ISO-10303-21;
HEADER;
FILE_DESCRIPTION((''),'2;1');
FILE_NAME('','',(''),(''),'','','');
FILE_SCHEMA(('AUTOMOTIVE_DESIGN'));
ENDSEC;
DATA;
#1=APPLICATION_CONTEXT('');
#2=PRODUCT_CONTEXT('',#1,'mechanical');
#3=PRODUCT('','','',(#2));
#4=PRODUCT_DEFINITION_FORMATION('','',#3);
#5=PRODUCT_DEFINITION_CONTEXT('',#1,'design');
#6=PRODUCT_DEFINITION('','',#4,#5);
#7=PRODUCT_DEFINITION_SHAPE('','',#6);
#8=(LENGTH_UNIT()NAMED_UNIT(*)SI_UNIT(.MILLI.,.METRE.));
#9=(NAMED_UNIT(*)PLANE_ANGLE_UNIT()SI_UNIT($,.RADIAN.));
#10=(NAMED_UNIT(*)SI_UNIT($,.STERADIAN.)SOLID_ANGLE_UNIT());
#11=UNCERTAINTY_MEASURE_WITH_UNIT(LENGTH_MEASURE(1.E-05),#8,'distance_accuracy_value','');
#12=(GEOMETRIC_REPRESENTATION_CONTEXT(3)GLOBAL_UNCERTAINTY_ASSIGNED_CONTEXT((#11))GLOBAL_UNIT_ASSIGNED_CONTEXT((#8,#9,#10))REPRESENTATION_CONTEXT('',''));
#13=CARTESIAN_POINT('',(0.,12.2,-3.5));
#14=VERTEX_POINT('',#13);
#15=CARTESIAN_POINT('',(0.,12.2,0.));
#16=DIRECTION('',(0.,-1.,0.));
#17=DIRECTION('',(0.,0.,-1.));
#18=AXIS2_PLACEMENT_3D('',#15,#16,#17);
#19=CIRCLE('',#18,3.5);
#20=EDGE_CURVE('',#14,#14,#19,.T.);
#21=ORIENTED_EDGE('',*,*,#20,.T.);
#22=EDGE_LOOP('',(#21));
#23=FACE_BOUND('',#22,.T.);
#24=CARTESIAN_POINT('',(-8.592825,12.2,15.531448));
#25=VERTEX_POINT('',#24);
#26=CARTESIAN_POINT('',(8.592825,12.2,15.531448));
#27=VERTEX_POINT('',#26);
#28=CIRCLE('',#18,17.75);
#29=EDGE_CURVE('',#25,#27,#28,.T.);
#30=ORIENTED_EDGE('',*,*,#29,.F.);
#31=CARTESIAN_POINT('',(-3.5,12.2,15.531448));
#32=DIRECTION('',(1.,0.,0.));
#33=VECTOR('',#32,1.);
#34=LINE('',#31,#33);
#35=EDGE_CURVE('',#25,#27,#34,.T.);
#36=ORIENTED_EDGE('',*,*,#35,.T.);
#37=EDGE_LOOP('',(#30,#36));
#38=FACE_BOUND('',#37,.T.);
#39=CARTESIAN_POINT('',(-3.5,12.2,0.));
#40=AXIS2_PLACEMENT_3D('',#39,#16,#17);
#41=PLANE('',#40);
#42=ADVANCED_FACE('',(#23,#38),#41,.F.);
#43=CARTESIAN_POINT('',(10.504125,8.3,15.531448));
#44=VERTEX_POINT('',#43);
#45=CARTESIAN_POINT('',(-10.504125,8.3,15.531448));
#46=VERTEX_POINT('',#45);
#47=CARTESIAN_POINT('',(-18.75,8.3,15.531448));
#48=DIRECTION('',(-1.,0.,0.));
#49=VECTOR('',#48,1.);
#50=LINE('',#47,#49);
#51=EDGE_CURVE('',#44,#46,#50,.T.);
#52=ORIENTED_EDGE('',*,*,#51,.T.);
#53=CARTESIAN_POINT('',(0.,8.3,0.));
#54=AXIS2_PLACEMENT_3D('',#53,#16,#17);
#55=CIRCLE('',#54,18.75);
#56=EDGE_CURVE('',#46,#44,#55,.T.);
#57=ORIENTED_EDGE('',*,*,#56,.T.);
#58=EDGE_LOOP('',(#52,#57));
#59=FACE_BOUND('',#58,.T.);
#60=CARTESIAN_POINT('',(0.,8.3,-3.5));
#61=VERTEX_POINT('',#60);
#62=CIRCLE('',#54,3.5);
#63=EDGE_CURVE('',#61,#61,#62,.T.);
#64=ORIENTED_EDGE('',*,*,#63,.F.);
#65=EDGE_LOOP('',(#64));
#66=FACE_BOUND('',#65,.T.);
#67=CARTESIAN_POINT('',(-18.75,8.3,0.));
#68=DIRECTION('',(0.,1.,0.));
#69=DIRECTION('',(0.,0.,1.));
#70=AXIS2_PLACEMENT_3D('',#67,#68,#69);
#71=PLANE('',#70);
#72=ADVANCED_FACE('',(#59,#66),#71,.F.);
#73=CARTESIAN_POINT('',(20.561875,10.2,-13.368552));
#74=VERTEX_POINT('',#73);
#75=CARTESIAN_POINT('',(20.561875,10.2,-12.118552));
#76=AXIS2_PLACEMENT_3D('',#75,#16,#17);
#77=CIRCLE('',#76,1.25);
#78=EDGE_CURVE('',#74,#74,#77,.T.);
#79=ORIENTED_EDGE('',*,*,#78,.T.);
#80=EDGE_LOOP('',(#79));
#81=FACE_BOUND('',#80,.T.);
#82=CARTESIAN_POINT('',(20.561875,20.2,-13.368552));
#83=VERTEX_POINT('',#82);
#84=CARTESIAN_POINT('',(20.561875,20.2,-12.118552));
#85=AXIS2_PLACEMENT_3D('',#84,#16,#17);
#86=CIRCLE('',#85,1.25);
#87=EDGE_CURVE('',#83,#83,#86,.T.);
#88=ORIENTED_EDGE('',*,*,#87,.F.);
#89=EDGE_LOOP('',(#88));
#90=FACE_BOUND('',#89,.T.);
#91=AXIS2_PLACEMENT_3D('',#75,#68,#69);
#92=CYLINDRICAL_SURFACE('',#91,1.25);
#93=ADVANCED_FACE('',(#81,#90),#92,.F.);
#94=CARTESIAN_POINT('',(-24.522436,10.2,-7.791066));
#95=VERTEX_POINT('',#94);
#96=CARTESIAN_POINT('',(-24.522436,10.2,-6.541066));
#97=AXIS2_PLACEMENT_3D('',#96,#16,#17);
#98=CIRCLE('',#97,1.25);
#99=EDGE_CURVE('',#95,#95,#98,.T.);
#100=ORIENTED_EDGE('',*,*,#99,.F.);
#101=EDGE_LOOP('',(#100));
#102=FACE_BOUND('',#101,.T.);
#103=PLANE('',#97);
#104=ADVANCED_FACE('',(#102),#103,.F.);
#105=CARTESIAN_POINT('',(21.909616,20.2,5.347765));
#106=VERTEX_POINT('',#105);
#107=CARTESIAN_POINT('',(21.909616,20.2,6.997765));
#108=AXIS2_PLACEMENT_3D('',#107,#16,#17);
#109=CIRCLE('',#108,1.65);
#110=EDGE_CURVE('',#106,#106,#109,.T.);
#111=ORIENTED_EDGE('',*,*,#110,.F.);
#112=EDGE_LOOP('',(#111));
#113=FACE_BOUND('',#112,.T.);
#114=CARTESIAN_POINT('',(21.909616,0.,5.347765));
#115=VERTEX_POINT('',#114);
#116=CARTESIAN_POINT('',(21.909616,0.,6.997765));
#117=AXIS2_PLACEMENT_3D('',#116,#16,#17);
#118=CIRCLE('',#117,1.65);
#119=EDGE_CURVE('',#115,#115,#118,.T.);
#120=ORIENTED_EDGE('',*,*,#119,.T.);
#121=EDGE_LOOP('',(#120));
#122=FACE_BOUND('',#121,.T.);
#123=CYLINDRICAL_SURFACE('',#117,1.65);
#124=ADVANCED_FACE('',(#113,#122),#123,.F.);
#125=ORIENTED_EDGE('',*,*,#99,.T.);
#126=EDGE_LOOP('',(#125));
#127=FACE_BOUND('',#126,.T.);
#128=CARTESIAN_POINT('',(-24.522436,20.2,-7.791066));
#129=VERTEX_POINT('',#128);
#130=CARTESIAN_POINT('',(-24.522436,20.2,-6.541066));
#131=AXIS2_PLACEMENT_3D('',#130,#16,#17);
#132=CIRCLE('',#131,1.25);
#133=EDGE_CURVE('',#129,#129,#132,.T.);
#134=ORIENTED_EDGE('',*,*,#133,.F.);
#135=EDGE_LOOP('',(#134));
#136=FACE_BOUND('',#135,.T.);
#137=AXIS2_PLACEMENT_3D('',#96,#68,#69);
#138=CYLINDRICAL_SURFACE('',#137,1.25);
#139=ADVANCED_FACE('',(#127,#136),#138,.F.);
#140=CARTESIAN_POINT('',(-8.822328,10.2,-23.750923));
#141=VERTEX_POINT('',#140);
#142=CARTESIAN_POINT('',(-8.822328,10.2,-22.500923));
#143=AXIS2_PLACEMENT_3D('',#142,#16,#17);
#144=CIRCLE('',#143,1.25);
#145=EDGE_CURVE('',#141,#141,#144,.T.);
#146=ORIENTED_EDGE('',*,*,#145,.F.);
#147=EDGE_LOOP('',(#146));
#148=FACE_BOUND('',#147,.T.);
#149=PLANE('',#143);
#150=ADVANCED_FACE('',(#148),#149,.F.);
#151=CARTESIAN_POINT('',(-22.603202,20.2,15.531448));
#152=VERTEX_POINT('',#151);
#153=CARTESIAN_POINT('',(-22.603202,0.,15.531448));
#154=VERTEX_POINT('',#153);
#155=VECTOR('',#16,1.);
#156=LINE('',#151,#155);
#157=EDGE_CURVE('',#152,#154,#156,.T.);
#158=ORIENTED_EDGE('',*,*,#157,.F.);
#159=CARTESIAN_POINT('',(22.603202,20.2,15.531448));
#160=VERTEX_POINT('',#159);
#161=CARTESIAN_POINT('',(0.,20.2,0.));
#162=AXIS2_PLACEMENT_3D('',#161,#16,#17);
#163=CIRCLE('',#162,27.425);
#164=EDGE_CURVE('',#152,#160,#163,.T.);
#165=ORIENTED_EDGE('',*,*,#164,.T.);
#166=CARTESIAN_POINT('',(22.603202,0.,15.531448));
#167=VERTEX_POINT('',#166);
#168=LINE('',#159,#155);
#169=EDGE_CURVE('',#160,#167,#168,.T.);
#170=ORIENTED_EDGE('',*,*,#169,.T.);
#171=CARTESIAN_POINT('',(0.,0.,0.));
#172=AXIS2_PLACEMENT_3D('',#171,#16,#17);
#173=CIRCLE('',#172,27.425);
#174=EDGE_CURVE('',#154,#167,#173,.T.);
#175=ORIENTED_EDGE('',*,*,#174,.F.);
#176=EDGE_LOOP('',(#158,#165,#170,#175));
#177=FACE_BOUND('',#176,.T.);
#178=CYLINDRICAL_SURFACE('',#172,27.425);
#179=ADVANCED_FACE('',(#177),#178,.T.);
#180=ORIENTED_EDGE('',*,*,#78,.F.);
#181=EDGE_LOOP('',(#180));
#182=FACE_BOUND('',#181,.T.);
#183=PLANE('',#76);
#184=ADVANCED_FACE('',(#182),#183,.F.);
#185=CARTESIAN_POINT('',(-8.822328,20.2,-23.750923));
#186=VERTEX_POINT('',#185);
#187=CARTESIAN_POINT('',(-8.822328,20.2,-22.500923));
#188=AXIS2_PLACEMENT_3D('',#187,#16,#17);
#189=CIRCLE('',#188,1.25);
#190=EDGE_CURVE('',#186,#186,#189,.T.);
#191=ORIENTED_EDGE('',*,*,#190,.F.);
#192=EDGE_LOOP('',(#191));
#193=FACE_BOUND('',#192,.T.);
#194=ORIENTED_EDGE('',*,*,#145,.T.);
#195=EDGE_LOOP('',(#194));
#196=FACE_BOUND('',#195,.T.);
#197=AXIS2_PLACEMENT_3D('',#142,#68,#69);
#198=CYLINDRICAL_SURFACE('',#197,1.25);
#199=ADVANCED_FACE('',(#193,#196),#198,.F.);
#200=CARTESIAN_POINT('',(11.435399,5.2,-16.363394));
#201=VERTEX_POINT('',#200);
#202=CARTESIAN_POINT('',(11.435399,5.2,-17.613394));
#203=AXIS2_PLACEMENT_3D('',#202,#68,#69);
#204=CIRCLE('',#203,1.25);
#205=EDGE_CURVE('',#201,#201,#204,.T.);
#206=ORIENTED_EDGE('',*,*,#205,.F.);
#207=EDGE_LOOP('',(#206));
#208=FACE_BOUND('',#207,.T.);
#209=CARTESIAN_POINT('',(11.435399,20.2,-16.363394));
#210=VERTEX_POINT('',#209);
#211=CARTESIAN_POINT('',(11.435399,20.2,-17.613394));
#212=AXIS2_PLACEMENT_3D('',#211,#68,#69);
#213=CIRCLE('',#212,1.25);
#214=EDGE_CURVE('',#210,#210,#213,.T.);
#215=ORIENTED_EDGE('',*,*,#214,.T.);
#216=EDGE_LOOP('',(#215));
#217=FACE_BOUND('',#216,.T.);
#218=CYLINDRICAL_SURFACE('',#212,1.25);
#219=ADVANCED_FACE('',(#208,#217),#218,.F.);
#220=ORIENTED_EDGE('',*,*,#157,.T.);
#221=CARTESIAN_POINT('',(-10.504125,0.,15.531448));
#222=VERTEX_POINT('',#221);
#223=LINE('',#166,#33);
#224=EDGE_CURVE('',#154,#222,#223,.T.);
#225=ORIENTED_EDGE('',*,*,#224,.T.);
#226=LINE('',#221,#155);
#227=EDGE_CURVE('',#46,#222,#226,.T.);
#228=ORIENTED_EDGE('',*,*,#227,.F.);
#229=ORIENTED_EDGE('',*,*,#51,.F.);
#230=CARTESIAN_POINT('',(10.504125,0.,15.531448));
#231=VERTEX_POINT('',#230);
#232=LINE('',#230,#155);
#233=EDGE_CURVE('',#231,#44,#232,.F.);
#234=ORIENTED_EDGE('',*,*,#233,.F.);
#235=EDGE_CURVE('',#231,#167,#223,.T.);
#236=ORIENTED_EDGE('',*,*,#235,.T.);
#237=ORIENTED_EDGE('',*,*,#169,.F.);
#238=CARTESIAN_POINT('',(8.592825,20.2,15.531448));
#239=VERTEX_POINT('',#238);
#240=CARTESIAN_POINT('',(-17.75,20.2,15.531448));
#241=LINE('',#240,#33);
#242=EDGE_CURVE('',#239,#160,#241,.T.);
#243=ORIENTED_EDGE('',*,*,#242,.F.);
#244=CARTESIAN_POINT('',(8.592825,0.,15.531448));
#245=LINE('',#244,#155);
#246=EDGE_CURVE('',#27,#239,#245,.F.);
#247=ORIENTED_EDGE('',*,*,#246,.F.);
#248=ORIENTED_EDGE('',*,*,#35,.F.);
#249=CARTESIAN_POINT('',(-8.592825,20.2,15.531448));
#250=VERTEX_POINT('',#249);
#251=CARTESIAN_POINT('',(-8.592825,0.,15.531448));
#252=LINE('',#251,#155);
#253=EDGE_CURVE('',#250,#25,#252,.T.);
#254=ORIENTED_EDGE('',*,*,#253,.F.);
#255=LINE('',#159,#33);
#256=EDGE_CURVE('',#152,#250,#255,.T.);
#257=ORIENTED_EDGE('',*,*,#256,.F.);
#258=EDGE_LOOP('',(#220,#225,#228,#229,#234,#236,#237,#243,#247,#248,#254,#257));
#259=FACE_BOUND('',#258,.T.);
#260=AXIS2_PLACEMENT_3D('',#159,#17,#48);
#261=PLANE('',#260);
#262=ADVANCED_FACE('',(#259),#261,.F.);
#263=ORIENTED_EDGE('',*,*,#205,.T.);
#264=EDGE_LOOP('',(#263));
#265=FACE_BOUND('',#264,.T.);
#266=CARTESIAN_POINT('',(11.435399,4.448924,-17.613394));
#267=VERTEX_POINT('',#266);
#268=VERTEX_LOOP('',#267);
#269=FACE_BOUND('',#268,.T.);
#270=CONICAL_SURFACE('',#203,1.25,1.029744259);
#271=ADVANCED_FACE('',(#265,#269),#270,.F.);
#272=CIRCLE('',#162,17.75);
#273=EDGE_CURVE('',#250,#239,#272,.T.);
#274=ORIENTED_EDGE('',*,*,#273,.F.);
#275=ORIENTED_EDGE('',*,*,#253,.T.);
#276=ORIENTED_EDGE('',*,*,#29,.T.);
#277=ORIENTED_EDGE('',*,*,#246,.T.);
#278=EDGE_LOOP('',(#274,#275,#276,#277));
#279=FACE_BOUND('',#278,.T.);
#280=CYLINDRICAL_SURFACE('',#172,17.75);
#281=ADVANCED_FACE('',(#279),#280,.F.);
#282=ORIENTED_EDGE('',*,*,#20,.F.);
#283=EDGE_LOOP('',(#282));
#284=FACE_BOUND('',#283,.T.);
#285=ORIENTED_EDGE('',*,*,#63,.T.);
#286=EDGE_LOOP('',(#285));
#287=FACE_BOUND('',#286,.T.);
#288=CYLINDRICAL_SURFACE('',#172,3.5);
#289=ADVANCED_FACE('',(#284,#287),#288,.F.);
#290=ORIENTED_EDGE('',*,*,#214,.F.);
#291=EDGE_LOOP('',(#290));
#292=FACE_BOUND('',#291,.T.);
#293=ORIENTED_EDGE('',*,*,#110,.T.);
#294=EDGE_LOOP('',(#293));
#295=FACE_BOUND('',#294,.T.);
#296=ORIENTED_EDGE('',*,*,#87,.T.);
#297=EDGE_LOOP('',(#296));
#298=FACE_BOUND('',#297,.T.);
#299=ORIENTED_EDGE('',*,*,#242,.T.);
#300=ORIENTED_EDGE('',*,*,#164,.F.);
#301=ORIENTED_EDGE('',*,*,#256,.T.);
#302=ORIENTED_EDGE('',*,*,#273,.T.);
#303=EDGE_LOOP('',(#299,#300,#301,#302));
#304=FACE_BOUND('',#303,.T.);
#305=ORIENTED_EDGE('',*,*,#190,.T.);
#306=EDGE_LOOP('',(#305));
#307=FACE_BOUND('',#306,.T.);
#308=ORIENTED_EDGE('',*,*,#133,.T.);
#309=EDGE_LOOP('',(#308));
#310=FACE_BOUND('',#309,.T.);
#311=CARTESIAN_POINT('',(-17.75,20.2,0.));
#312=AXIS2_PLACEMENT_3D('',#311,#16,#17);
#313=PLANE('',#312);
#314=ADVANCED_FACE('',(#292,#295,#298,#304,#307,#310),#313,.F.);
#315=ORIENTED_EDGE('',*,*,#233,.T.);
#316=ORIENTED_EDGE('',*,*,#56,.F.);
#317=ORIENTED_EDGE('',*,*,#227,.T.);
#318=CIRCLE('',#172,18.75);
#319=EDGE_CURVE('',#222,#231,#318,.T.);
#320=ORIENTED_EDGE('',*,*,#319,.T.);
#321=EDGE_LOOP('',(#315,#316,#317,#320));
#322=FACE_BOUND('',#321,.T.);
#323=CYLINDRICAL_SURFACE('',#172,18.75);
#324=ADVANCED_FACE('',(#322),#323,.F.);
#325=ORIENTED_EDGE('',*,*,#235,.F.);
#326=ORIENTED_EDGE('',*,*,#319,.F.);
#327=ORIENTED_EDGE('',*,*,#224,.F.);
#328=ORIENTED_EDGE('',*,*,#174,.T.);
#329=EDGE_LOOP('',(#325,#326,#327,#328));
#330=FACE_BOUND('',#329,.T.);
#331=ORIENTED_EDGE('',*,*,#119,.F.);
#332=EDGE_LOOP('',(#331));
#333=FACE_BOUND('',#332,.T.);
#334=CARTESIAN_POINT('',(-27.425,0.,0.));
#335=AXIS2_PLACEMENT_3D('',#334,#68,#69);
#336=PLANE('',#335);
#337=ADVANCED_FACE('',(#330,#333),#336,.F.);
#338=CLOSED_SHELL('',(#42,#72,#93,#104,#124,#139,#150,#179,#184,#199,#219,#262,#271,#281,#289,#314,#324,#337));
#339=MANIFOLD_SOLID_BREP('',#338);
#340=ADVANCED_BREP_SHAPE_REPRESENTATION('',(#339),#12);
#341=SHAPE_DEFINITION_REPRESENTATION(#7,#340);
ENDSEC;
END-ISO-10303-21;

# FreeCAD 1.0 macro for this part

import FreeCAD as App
import Part
import Sketcher
Q = App.Units.Quantity

doc = App.newDocument("Part")
body = doc.addObject("PartDesign::Body", "Body")

# Sketch on XY plane
sketch1 = doc.addObject("Sketcher::SketchObject", "Sketch")
body.addObject(sketch1)
sketch1.AttachmentSupport = (doc.XY_Plane, [""])
sketch1.MapMode = "FlatFace"
sketch1.addGeometry([
    Part.LineSegment(App.Vector(-27.4, 0, 0), App.Vector(-18.8, 0, 0)),  # 0
    Part.LineSegment(App.Vector(-18.8, 0, 0), App.Vector(-18.8, 8.3, 0)),  # 1
    Part.LineSegment(App.Vector(-18.8, 8.3, 0), App.Vector(-3.5, 8.3, 0)),  # 2
    Part.LineSegment(App.Vector(-3.5, 8.3, 0), App.Vector(-3.5, 12.2, 0)),  # 3
    Part.LineSegment(App.Vector(-3.5, 12.2, 0), App.Vector(-17.8, 12.2, 0)),  # 4
    Part.LineSegment(App.Vector(-17.8, 12.2, 0), App.Vector(-17.8, 20.2, 0)),  # 5
    Part.LineSegment(App.Vector(-17.8, 20.2, 0), App.Vector(-27.4, 20.2, 0)),  # 6
    Part.LineSegment(App.Vector(-27.4, 20.2, 0), App.Vector(-27.4, 0, 0)),  # 7
], False)
sketch1.addConstraint([
    Sketcher.Constraint("Coincident", 0, 2, 1, 1),
    Sketcher.Constraint("Coincident", 1, 2, 2, 1),
    Sketcher.Constraint("Coincident", 2, 2, 3, 1),
    Sketcher.Constraint("Coincident", 3, 2, 4, 1),
    Sketcher.Constraint("Coincident", 4, 2, 5, 1),
    Sketcher.Constraint("Coincident", 5, 2, 6, 1),
    Sketcher.Constraint("Coincident", 6, 2, 7, 1),
    Sketcher.Constraint("Coincident", 7, 2, 0, 1),
    Sketcher.Constraint("Horizontal", 0),
    Sketcher.Constraint("Vertical", 1),
    Sketcher.Constraint("Horizontal", 2),
    Sketcher.Constraint("Vertical", 3),
    Sketcher.Constraint("Horizontal", 4),
    Sketcher.Constraint("Vertical", 5),
    Sketcher.Constraint("Horizontal", 6),
    Sketcher.Constraint("Vertical", 7),
    Sketcher.Constraint("PointOnObject", 0, 2, -1),
    Sketcher.Constraint("DistanceY", 5, 1, 5, 2, Q("8 mm")),
    Sketcher.Constraint("DistanceY", 1, 1, 1, 2, Q("8.3 mm")),
    Sketcher.Constraint("DistanceY", 3, 1, 3, 2, Q("3.9 mm")),
    Sketcher.Constraint("DistanceX", 1, 2, 4, 2, Q("1 mm")),
    Sketcher.Constraint("DistanceX", 2, 1, 2, 2, Q("15.25 mm")),
    Sketcher.Constraint("DistanceX", 2, 2, -1, 1, Q("3.5 mm")),
    Sketcher.Constraint("DistanceX", 0, 1, 0, 2, Q("8.675 mm")),
])
revolution = doc.addObject("PartDesign::Revolution", "Revolution")
body.addObject(revolution)
revolution.Profile = sketch1
revolution.ReferenceAxis = (sketch1, ["V_Axis"])
revolution.Angle = 360

# Sketch on XZ plane
sketch2 = doc.addObject("Sketcher::SketchObject", "Sketch001")
body.addObject(sketch2)
sketch2.AttachmentSupport = (doc.XZ_Plane, [""])
sketch2.MapMode = "FlatFace"
sketch2.addGeometry([
    Part.LineSegment(App.Vector(-23, 27, 0), App.Vector(-23, 16, 0)),
    Part.LineSegment(App.Vector(-23, 16, 0), App.Vector(23, 16, 0)),
    Part.LineSegment(App.Vector(23, 16, 0), App.Vector(23, 27, 0)),
    Part.LineSegment(App.Vector(23, 27, 0), App.Vector(-23, 27, 0)),
], False)
sketch2.addConstraint([
    Sketcher.Constraint("Coincident", 0, 2, 1, 1),
    Sketcher.Constraint("Coincident", 1, 2, 2, 1),
    Sketcher.Constraint("Coincident", 2, 2, 3, 1),
    Sketcher.Constraint("Coincident", 3, 2, 0, 1),
    Sketcher.Constraint("Vertical", 0),
    Sketcher.Constraint("Horizontal", 1),
    Sketcher.Constraint("Vertical", 2),
    Sketcher.Constraint("Horizontal", 3),
    Sketcher.Constraint("DistanceY", -1, 1, 2, 2, Q("27.425 mm")),
    Sketcher.Constraint("DistanceX", 1, 1, 1, 2, Q("45.206405 mm")),
    Sketcher.Constraint("DistanceY", 0, 2, 0, 1, Q("11.893552 mm")),
    Sketcher.Constraint("DistanceX", 0, 2, -1, 1, Q("22.603202 mm")),
])
pocket1 = doc.addObject("PartDesign::Pocket", "Pocket")
body.addObject(pocket1)
pocket1.Profile = sketch2
pocket1.Type = "ThroughAll"

# Sketch on XZ plane
sketch3 = doc.addObject("Sketcher::SketchObject", "Sketch002")
body.addObject(sketch3)
sketch3.AttachmentSupport = (doc.XZ_Plane, [""])
sketch3.MapMode = "FlatFace"
sketch3.AttachmentOffset = App.Placement(App.Vector(0, 0, -20.2), App.Rotation())
sketch3.addGeometry(Part.Circle(App.Vector(11.4, -17.6, 0), App.Vector(0, 0, 1), 1.2), False)
sketch3.addConstraint([
    Sketcher.Constraint("Diameter", 0, Q("2.5 mm")),
    Sketcher.Constraint("DistanceX", -1, 1, 0, 3, Q("11.435399 mm")),
    Sketcher.Constraint("DistanceY", 0, 3, -1, 1, Q("17.613394 mm")),
])
doc.recompute()
hole = doc.addObject("PartDesign::Hole", "Hole")
body.addObject(hole)
hole.Profile = sketch3
hole.ThreadType = "None"
hole.Diameter = 2.5
hole.DepthType = "Dimension"
hole.Depth = 15
hole.DrillPoint = "Angled"
hole.DrillPointAngle = 118
hole.Reversed = True

# Sketch on XZ plane
sketch4 = doc.addObject("Sketcher::SketchObject", "Sketch003")
body.addObject(sketch4)
sketch4.AttachmentSupport = (doc.XZ_Plane, [""])
sketch4.MapMode = "FlatFace"
sketch4.AttachmentOffset = App.Placement(App.Vector(0, 0, -20.2), App.Rotation())
sketch4.addGeometry([
    Part.Circle(App.Vector(20.6, -12.1, 0), App.Vector(0, 0, 1), 1.2),
    Part.Circle(App.Vector(-8.8, -22.5, 0), App.Vector(0, 0, 1), 1.2),
    Part.Circle(App.Vector(-24.5, -6.5, 0), App.Vector(0, 0, 1), 1.2),
], False)
sketch4.addConstraint([
    Sketcher.Constraint("Equal", 0, 1),
    Sketcher.Constraint("Equal", 1, 2),
    Sketcher.Constraint("Diameter", 0, Q("2.5 mm")),
    Sketcher.Constraint("DistanceX", 1, 3, -1, 1, Q("8.822328 mm")),
    Sketcher.Constraint("DistanceY", 1, 3, 0, 3, Q("10.38237 mm")),
    Sketcher.Constraint("DistanceX", 2, 3, 0, 3, Q("45.08431 mm")),
    Sketcher.Constraint("DistanceX", -1, 1, 0, 3, Q("20.561875 mm")),
    Sketcher.Constraint("DistanceY", 0, 3, -1, 1, Q("12.118552 mm")),
    Sketcher.Constraint("DistanceY", 2, 3, -1, 1, Q("6.541066 mm")),
])
pocket2 = doc.addObject("PartDesign::Pocket", "Pocket001")
body.addObject(pocket2)
pocket2.Profile = sketch4
pocket2.Length = 10
pocket2.Reversed = True

# Sketch on XZ plane
sketch5 = doc.addObject("Sketcher::SketchObject", "Sketch004")
body.addObject(sketch5)
sketch5.AttachmentSupport = (doc.XZ_Plane, [""])
sketch5.MapMode = "FlatFace"
sketch5.addGeometry(Part.Circle(App.Vector(21.9, 7, 0), App.Vector(0, 0, 1), 1.6), False)
sketch5.addConstraint([
    Sketcher.Constraint("Diameter", 0, Q("3.3 mm")),
    Sketcher.Constraint("DistanceX", -1, 1, 0, 3, Q("21.909616 mm")),
    Sketcher.Constraint("DistanceY", -1, 1, 0, 3, Q("6.997765 mm")),
])
doc.recompute()
hole2 = doc.addObject("PartDesign::Hole", "Hole001")
body.addObject(hole2)
hole2.Profile = sketch5
hole2.ThreadType = "None"
hole2.Diameter = 3.3
hole2.DepthType = "ThroughAll"

doc.recompute()
